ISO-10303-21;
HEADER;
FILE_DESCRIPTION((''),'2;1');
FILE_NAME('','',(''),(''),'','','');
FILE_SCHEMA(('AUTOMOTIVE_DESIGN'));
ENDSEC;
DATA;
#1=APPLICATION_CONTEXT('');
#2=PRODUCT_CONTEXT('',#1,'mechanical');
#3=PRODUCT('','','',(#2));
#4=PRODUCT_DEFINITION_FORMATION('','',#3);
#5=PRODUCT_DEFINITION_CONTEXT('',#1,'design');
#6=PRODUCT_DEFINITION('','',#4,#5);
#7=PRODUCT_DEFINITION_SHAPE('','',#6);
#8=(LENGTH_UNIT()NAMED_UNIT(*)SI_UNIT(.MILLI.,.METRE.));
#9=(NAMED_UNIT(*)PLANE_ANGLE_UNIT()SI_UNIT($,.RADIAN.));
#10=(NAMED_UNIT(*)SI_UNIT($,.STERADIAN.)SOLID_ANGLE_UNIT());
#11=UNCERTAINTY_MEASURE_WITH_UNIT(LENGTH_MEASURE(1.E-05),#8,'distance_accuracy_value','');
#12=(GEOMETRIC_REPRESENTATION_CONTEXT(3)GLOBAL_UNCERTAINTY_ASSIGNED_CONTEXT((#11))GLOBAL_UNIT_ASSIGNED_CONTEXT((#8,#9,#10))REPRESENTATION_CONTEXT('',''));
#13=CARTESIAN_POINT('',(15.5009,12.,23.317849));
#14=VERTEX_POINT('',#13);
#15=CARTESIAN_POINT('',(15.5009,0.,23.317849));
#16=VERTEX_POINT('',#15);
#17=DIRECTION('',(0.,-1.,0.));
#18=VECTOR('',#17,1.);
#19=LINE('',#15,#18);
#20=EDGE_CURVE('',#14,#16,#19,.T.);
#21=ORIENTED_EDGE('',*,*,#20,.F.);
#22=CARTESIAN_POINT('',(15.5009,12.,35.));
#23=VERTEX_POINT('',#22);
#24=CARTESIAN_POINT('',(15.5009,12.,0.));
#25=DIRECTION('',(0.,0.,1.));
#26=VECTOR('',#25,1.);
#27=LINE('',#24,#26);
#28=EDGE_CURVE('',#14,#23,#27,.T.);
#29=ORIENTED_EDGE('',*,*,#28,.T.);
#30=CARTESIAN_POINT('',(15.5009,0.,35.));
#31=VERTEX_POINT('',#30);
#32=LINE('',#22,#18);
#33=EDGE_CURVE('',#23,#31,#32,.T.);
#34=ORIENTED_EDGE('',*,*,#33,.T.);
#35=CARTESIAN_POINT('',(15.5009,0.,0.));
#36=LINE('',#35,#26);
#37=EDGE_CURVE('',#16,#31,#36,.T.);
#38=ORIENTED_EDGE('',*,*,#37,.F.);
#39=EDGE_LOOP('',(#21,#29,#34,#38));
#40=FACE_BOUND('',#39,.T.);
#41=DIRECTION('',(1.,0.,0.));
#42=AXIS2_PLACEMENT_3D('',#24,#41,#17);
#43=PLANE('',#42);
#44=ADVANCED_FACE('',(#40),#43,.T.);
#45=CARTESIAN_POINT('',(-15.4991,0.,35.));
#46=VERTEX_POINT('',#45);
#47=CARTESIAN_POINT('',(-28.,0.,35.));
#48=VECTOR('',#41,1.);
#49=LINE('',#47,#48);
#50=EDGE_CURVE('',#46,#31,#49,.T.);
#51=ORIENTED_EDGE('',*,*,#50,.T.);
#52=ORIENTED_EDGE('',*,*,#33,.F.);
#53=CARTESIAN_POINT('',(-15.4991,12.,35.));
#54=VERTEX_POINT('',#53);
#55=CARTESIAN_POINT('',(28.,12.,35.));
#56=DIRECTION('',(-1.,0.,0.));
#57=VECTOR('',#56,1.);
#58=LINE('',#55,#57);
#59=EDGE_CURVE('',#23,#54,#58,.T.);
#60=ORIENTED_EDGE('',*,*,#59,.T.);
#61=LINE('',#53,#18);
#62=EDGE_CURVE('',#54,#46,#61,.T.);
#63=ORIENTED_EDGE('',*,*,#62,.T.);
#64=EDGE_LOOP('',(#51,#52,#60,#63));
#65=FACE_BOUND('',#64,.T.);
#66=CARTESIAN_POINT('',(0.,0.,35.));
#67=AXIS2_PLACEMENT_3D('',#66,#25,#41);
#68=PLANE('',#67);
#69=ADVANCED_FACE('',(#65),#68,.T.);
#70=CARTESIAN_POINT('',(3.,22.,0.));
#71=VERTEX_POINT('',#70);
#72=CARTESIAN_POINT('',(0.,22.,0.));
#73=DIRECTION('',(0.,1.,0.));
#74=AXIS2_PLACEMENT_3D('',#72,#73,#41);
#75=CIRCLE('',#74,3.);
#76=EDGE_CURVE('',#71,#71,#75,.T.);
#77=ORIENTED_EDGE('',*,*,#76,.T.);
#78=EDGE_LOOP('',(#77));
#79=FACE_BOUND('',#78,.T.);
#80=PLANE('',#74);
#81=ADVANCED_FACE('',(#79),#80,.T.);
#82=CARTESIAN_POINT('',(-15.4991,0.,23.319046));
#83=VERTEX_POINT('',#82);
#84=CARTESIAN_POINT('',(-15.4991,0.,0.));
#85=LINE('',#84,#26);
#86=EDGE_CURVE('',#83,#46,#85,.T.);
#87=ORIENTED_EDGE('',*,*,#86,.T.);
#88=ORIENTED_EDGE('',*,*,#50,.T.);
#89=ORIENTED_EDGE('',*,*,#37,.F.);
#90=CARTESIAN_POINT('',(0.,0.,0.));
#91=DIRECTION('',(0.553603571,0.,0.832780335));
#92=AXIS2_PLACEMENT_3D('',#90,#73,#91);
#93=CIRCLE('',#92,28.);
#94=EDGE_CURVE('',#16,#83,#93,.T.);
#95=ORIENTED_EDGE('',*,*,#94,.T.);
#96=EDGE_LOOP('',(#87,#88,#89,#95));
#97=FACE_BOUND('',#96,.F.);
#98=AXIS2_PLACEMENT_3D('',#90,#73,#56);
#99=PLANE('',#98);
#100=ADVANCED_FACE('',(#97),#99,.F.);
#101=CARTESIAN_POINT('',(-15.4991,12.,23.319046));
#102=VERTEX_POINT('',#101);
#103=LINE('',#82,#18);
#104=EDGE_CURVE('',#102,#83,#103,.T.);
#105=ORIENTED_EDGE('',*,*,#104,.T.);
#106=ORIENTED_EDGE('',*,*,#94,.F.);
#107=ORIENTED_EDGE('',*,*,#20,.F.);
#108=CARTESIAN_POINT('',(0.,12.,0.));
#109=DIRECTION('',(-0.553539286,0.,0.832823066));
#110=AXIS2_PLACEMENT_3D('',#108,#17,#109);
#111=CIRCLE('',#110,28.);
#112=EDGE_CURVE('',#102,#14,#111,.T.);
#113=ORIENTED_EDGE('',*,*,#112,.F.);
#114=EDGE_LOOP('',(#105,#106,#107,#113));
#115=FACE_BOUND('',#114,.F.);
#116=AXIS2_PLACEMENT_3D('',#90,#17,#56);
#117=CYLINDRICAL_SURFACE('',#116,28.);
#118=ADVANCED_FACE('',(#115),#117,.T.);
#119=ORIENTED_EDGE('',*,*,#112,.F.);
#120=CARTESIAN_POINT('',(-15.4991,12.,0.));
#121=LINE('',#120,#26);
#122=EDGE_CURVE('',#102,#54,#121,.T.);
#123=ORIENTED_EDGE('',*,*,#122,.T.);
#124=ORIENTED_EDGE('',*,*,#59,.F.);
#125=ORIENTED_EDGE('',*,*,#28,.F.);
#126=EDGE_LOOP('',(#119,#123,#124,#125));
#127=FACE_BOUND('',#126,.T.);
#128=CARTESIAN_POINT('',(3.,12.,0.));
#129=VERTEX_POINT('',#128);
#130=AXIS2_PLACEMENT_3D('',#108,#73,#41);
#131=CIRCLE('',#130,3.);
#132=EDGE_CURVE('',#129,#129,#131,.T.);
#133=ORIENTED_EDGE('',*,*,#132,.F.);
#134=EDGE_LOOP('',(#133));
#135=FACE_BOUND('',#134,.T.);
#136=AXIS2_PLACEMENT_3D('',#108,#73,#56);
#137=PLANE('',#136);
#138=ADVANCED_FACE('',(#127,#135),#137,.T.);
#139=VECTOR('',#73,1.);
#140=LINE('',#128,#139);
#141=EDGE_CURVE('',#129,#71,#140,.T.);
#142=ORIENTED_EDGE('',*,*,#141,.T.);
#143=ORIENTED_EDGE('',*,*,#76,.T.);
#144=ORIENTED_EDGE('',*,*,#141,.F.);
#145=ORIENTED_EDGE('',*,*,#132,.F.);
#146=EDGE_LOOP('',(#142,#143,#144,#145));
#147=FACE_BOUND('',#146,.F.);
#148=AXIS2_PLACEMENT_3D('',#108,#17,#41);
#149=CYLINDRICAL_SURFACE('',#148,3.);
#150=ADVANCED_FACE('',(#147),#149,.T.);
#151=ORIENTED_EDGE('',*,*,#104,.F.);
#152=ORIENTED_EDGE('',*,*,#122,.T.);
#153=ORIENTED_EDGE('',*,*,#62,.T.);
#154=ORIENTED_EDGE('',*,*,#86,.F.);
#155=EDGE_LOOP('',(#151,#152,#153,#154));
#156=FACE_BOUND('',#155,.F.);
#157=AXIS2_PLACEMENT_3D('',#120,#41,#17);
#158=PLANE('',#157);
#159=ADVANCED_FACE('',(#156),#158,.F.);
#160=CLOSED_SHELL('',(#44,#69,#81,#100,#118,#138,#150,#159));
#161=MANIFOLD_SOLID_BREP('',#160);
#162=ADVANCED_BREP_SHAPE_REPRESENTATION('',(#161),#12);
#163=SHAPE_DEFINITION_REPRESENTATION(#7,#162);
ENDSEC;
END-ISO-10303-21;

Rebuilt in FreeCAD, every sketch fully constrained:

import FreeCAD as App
import Part
import Sketcher
Q = App.Units.Quantity

doc = App.newDocument("Part")
body = doc.addObject("PartDesign::Body", "Body")

sketch1 = body.newObject("Sketcher::SketchObject", "Sketch")
sketch1.AttachmentSupport = (doc.getObject("XZ_Plane"), [""])
sketch1.MapMode = "FlatFace"
sketch1.addGeometry(Part.Circle(App.Vector(0, 0, 0), App.Vector(0, 0, 1), 28), False)
sketch1.addConstraint([
    Sketcher.Constraint("Coincident", 0, 3, -1, 1),
    Sketcher.Constraint("Diameter", 0, Q("56 mm")),
])
pad1 = body.newObject("PartDesign::Pad", "Pad")
pad1.Profile = sketch1
pad1.Length = 12
pad1.Reversed = True

sketch2 = body.newObject("Sketcher::SketchObject", "Sketch001")
sketch2.AttachmentSupport = (doc.getObject("XY_Plane"), [""])
sketch2.MapMode = "FlatFace"
sketch2.addGeometry([
    Part.LineSegment(App.Vector(15.5009, 0, 0), App.Vector(15.5009, 12, 0)),
    Part.LineSegment(App.Vector(15.5009, 12, 0), App.Vector(-15.4991, 12, 0)),
    Part.LineSegment(App.Vector(-15.4991, 12, 0), App.Vector(-15.4991, 0, 0)),
    Part.LineSegment(App.Vector(-15.4991, 0, 0), App.Vector(15.5009, 0, 0)),
], False)
sketch2.addConstraint([
    Sketcher.Constraint("Coincident", 0, 2, 1, 1),
    Sketcher.Constraint("Coincident", 1, 2, 2, 1),
    Sketcher.Constraint("Coincident", 2, 2, 3, 1),
    Sketcher.Constraint("Coincident", 3, 2, 0, 1),
    Sketcher.Constraint("Vertical", 0),
    Sketcher.Constraint("Horizontal", 1),
    Sketcher.Constraint("Vertical", 2),
    Sketcher.Constraint("Horizontal", 3),
    Sketcher.Constraint("PointOnObject", 2, 2, -1),
    Sketcher.Constraint("DistanceX", 1, 2, 1, 1, Q("31 mm")),
    Sketcher.Constraint("DistanceY", 0, 1, 0, 2, Q("12 mm")),
    Sketcher.Constraint("DistanceX", -1, 1, 0, 2, Q("15.501 mm")),
])
pad2 = body.newObject("PartDesign::Pad", "Pad001")
pad2.Profile = sketch2
pad2.Length = 35

sketch3 = body.newObject("Sketcher::SketchObject", "Sketch002")
sketch3.AttachmentSupport = (doc.getObject("XZ_Plane"), [""])
sketch3.MapMode = "FlatFace"
sketch3.AttachmentOffset = App.Placement(App.Vector(0, 0, -12), App.Rotation())
sketch3.addGeometry(Part.Circle(App.Vector(0, 0, 0), App.Vector(0, 0, 1), 3), False)
sketch3.addConstraint([
    Sketcher.Constraint("Coincident", 0, 3, -1, 1),
    Sketcher.Constraint("Diameter", 0, Q("6 mm")),
])
pad3 = body.newObject("PartDesign::Pad", "Pad002")
pad3.Profile = sketch3
pad3.Length = 10
pad3.Reversed = True

doc.recompute()
